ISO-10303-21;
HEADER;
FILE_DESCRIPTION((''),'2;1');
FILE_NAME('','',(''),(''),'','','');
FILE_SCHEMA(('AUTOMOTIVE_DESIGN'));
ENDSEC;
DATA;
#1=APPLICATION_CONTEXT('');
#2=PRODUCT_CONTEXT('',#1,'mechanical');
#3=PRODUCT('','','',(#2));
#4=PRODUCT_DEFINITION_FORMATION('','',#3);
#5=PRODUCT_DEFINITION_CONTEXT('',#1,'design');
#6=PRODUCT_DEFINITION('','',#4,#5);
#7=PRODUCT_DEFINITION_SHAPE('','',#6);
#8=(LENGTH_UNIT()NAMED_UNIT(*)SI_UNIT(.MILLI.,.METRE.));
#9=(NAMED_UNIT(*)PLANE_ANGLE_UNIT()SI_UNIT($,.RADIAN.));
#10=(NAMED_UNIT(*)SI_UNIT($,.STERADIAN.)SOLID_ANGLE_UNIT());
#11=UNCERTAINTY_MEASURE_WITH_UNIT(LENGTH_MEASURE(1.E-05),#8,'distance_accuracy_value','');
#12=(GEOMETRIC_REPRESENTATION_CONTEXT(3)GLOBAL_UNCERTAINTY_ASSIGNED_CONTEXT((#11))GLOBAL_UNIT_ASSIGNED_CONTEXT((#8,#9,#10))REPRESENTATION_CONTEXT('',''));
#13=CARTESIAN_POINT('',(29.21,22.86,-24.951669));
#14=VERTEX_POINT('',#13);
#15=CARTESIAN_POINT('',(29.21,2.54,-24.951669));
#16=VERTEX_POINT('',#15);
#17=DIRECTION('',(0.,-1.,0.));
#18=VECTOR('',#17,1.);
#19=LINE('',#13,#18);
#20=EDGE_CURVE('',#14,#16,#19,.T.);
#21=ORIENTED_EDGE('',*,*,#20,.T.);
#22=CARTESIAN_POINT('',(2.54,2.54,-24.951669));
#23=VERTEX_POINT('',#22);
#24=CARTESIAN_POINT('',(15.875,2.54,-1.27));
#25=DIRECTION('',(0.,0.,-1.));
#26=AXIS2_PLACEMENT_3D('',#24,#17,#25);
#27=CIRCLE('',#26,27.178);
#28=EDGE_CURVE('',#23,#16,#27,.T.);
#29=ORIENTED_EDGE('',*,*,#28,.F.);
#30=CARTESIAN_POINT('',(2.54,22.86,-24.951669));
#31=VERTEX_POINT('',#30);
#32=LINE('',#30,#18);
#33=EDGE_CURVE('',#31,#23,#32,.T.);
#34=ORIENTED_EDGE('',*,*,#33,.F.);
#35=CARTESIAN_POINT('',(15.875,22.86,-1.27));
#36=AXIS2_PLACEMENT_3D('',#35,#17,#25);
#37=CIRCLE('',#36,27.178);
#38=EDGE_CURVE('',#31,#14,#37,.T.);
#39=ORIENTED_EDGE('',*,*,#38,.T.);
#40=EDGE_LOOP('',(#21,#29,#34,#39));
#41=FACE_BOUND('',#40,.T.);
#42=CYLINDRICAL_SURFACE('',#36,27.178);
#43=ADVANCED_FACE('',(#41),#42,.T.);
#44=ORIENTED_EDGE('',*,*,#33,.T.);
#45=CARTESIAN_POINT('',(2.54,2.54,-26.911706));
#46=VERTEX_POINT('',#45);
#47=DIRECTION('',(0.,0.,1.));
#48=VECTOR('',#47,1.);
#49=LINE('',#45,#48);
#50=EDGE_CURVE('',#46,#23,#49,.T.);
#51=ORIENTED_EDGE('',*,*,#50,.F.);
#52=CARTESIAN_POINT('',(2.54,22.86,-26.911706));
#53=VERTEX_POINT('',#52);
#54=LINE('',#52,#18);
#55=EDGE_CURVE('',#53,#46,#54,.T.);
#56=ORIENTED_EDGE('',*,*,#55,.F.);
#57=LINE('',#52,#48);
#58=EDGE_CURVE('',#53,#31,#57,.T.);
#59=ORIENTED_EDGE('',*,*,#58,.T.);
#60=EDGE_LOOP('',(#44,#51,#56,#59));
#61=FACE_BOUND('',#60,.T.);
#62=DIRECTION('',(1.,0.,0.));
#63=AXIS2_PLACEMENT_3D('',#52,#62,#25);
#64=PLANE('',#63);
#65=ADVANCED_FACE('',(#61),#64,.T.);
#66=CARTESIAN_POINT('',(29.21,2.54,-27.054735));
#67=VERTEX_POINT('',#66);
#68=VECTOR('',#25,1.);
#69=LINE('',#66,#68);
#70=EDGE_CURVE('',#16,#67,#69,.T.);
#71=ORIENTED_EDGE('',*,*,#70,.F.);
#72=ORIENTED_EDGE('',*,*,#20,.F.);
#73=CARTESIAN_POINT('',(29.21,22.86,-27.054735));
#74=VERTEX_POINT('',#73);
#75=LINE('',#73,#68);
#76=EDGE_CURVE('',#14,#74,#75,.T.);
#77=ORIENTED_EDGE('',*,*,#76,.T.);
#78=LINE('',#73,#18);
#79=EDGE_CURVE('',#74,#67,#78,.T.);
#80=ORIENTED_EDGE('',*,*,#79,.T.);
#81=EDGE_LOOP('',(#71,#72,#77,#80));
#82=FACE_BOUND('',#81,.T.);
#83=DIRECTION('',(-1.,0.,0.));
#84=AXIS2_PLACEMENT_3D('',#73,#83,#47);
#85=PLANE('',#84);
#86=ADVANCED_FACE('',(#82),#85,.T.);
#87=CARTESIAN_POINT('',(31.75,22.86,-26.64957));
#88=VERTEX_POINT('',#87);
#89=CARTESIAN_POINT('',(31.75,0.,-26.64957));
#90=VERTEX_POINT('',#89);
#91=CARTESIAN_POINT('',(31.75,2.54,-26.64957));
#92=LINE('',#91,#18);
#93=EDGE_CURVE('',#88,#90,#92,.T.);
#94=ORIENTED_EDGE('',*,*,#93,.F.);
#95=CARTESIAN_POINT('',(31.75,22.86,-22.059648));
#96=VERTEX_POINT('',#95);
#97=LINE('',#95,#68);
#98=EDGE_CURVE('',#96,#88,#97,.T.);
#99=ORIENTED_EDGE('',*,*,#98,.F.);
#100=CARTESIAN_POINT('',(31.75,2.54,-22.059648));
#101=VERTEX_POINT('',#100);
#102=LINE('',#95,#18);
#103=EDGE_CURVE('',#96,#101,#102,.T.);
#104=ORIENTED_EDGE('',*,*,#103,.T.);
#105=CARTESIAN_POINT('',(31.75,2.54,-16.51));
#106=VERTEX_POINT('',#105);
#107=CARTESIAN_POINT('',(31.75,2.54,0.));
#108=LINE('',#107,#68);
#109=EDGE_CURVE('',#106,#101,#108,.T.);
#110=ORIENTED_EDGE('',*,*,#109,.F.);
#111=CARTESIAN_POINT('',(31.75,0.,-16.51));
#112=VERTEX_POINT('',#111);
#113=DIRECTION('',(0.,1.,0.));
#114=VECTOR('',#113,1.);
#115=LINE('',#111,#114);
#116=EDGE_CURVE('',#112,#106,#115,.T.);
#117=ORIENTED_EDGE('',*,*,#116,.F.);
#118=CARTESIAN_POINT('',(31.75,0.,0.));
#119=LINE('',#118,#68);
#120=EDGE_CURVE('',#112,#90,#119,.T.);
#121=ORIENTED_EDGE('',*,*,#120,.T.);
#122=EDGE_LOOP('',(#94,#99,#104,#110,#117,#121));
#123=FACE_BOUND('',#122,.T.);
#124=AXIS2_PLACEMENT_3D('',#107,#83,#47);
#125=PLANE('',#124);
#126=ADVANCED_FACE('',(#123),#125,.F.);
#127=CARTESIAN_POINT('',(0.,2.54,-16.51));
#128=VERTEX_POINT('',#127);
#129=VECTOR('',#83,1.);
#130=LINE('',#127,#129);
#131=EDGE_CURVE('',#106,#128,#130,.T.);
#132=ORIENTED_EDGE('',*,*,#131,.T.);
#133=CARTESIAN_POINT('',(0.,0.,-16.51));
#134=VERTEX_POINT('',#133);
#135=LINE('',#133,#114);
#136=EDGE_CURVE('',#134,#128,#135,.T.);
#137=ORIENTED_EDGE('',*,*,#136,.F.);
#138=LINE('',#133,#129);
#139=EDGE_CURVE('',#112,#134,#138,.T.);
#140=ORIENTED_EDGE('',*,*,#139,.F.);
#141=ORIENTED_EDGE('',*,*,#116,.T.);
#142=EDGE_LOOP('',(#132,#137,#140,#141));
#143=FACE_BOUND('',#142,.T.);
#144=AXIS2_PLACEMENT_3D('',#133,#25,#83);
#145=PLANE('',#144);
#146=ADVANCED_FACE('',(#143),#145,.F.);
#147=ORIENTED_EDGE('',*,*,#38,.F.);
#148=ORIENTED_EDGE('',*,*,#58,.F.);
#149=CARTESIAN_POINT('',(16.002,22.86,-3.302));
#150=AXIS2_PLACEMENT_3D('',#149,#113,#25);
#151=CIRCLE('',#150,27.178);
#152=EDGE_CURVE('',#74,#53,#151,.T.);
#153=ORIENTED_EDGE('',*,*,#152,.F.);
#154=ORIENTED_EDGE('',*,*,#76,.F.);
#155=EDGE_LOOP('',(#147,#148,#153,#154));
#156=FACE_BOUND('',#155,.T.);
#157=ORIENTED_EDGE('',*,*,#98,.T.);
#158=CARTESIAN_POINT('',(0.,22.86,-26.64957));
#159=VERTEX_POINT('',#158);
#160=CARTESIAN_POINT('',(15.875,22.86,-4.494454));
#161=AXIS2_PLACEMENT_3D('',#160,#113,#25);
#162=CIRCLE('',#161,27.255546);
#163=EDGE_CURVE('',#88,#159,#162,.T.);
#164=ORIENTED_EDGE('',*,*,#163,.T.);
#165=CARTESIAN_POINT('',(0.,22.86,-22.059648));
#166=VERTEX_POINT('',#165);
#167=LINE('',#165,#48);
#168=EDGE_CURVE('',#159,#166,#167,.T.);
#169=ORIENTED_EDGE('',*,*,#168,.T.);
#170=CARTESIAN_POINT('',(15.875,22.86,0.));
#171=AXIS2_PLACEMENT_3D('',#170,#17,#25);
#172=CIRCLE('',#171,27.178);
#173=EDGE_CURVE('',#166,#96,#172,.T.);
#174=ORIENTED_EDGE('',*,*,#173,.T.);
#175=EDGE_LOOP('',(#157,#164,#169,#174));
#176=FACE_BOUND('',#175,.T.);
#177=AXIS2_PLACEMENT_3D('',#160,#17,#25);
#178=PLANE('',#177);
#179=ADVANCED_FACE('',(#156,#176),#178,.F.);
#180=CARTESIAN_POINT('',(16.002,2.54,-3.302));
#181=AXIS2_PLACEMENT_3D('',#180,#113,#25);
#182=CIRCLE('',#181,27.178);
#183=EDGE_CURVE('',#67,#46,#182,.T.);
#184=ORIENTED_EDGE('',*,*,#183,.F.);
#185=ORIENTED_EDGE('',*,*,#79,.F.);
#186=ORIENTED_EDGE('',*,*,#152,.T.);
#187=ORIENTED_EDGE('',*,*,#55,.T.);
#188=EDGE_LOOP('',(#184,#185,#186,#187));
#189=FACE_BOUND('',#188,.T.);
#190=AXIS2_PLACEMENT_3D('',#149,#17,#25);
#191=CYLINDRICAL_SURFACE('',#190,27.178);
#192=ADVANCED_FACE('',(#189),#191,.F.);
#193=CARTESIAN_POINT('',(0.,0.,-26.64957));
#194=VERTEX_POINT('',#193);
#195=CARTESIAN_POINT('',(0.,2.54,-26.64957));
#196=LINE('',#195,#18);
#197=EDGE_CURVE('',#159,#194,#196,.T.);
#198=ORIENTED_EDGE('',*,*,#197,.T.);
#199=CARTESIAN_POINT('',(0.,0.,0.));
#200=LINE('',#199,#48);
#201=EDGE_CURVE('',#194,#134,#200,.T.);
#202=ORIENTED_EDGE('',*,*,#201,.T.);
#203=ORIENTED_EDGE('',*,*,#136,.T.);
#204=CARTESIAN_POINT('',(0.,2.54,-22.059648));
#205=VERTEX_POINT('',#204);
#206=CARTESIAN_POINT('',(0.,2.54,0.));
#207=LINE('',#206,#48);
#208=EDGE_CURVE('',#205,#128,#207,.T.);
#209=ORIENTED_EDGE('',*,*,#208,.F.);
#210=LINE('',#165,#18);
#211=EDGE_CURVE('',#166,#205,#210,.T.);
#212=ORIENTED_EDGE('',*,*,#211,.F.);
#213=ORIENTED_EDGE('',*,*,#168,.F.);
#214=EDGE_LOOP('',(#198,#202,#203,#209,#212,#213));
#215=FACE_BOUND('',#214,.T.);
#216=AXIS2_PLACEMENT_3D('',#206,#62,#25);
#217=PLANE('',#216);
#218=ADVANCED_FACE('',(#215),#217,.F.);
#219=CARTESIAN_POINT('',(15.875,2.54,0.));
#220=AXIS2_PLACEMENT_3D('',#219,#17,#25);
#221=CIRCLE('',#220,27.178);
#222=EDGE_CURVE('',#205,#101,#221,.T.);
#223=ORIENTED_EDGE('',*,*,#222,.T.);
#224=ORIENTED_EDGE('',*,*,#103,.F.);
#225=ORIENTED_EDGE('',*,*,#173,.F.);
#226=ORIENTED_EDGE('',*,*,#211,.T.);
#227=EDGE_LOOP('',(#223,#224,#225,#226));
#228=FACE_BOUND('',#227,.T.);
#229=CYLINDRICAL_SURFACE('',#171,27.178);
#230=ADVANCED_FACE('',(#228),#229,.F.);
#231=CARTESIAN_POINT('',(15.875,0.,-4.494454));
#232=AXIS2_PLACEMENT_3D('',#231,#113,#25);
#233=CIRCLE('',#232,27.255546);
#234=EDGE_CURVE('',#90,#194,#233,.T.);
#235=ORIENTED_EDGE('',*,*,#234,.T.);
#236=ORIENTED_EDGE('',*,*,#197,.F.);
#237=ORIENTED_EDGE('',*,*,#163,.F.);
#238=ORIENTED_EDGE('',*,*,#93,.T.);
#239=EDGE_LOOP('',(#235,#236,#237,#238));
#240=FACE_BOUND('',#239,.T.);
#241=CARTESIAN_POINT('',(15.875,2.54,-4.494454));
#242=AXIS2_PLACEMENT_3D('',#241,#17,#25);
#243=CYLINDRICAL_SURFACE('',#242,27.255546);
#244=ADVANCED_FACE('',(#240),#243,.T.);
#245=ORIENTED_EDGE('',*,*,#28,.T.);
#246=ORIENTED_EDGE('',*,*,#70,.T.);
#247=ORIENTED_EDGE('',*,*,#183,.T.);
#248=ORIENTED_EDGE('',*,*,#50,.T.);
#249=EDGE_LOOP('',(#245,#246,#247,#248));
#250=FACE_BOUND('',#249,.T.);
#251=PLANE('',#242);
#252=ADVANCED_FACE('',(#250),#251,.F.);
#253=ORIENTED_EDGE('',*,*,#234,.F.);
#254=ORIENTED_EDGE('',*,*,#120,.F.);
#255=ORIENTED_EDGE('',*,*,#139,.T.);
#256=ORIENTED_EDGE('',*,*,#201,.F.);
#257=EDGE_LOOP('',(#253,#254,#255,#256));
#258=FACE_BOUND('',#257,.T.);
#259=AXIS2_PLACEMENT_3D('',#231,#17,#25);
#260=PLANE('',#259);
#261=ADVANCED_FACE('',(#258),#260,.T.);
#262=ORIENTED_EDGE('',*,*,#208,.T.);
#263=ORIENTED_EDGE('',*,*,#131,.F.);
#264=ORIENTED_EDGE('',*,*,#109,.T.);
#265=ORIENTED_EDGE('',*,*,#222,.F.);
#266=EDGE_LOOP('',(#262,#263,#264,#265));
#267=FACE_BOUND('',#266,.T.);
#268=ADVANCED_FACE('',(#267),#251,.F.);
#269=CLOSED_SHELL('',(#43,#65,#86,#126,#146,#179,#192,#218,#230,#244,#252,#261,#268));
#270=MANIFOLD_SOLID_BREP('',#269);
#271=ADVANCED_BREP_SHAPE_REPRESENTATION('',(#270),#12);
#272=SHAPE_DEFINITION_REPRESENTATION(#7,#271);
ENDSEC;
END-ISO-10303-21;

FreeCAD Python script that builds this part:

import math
import FreeCAD as App
import Part
import Sketcher
from FreeCAD import Vector
Q = App.Units.Quantity

doc = App.newDocument("Part")
body = doc.addObject("PartDesign::Body", "Body")

# Sketch on XZ plane
sketch1 = body.newObject("Sketcher::SketchObject", "Sketch")
sketch1.AttachmentSupport = (doc.getObject("XZ_Plane"), [""])
sketch1.MapMode = "FlatFace"
sketch1.addGeometry(Part.LineSegment(Vector(0, 0, 0), Vector(32, 0, 0)), False)
sketch1.addGeometry(Part.LineSegment(Vector(32, 0, 0), Vector(32, -27, 0)), False)
sketch1.addGeometry(Part.ArcOfCircle(Part.Circle(Vector(16, -4, 0), Vector(0, 0, 1), 27), math.radians(-126), math.radians(-54)), False)
sketch1.addGeometry(Part.LineSegment(Vector(0, -27, 0), Vector(0, 0, 0)), False)
sketch1.addConstraint(Sketcher.Constraint("Coincident", 0, 2, 1, 1))
sketch1.addConstraint(Sketcher.Constraint("Coincident", 1, 2, 2, 2))
sketch1.addConstraint(Sketcher.Constraint("Coincident", 2, 1, 3, 1))
sketch1.addConstraint(Sketcher.Constraint("Coincident", 3, 2, 0, 1))
sketch1.addConstraint(Sketcher.Constraint("Horizontal", 0))
sketch1.addConstraint(Sketcher.Constraint("Vertical", 1))
sketch1.addConstraint(Sketcher.Constraint("Vertical", 3))
sketch1.addConstraint(Sketcher.Constraint("Coincident", 3, 2, -1, 1))
sketch1.addConstraint(Sketcher.Constraint("Horizontal", 1, 2, 2, 1))
sketch1.addConstraint(Sketcher.Constraint("DistanceX", 0, 1, 0, 2, Q("1.25 in")))
sketch1.addConstraint(Sketcher.Constraint("Radius", 2, 27.255546))
sketch1.addConstraint(Sketcher.Constraint("DistanceY", 1, 2, 1, 1, 26.64957))
pad1 = body.newObject("PartDesign::Pad", "Pad")
pad1.Profile = sketch1
pad1.Length = Q("0.1 in")
pad1.Reversed = True

# Sketch on XZ plane
sketch2 = body.newObject("Sketcher::SketchObject", "Sketch001")
sketch2.AttachmentSupport = (doc.getObject("XZ_Plane"), [""])
sketch2.MapMode = "FlatFace"
sketch2.AttachmentOffset = App.Placement(Vector(0, 0, -0.1 * 25.4), App.Rotation())
sketch2.addGeometry(Part.LineSegment(Vector(31.8, -22.1, 0), Vector(31.8, -26.6, 0)), False)
sketch2.addGeometry(Part.ArcOfCircle(Part.Circle(Vector(15.9, -4.5, 0), Vector(0, 0, 1), 27.3), math.radians(-126), math.radians(-54)), False)
sketch2.addGeometry(Part.LineSegment(Vector(0, -26.6, 0), Vector(0, -22.1, 0)), False)
sketch2.addGeometry(Part.ArcOfCircle(Part.Circle(Vector(15.9, 0, 0), Vector(0, 0, 1), 27.2), math.radians(-126), math.radians(-54)), False)
sketch2.addGeometry(Part.LineSegment(Vector(2.5, -25, 0), Vector(2.5, -26.9, 0)), False)
sketch2.addGeometry(Part.ArcOfCircle(Part.Circle(Vector(16, -3.3, 0), Vector(0, 0, 1), 27.2), math.radians(-120), math.radians(-61)), False)
sketch2.addGeometry(Part.LineSegment(Vector(29.2, -27.1, 0), Vector(29.2, -25, 0)), False)
sketch2.addGeometry(Part.ArcOfCircle(Part.Circle(Vector(15.9, -1.3, 0), Vector(0, 0, 1), 27.2), math.radians(-119), math.radians(-61)), False)
sketch2.addConstraint(Sketcher.Constraint("Coincident", 0, 2, 1, 2))
sketch2.addConstraint(Sketcher.Constraint("Coincident", 1, 1, 2, 1))
sketch2.addConstraint(Sketcher.Constraint("Coincident", 2, 2, 3, 1))
sketch2.addConstraint(Sketcher.Constraint("Coincident", 3, 2, 0, 1))
sketch2.addConstraint(Sketcher.Constraint("Coincident", 4, 2, 5, 1))
sketch2.addConstraint(Sketcher.Constraint("Coincident", 5, 2, 6, 1))
sketch2.addConstraint(Sketcher.Constraint("Coincident", 6, 2, 7, 2))
sketch2.addConstraint(Sketcher.Constraint("Coincident", 7, 1, 4, 1))
sketch2.addConstraint(Sketcher.Constraint("Vertical", 0))
sketch2.addConstraint(Sketcher.Constraint("Vertical", 2))
sketch2.addConstraint(Sketcher.Constraint("Vertical", 4))
sketch2.addConstraint(Sketcher.Constraint("Vertical", 6))
sketch2.addConstraint(Sketcher.Constraint("Equal", 3, 5))
sketch2.addConstraint(Sketcher.Constraint("Equal", 5, 7))
sketch2.addConstraint(Sketcher.Constraint("PointOnObject", 3, 3, -1))
sketch2.addConstraint(Sketcher.Constraint("PointOnObject", 1, 1, -2))
sketch2.addConstraint(Sketcher.Constraint("Horizontal", 0, 2, 1, 1))
sketch2.addConstraint(Sketcher.Constraint("Horizontal", 2, 2, 3, 2))
sketch2.addConstraint(Sketcher.Constraint("Horizontal", 6, 2, 7, 1))
sketch2.addConstraint(Sketcher.Constraint("Vertical", 3, 3, 7, 3))
sketch2.addConstraint(Sketcher.Constraint("Radius", 3, Q("1.07 in")))
sketch2.addConstraint(Sketcher.Constraint("DistanceX", -1, 1, 4, 2, Q("0.1 in")))
sketch2.addConstraint(Sketcher.Constraint("DistanceX", -1, 1, 5, 3, Q("0.63 in")))
sketch2.addConstraint(Sketcher.Constraint("DistanceY", 5, 3, -1, 1, Q("0.13 in")))
sketch2.addConstraint(Sketcher.Constraint("DistanceY", 7, 3, -1, 1, Q("0.05 in")))
sketch2.addConstraint(Sketcher.Constraint("DistanceX", -1, 1, 0, 2, Q("1.25 in")))
sketch2.addConstraint(Sketcher.Constraint("Radius", 1, 27.255546))
sketch2.addConstraint(Sketcher.Constraint("DistanceY", 5, 2, 1, 3, Q("0.8882 in")))
pad2 = body.newObject("PartDesign::Pad", "Pad001")
pad2.Profile = sketch2
pad2.Length = Q("0.8 in")
pad2.Reversed = True

# Sketch on XZ plane
sketch3 = body.newObject("Sketcher::SketchObject", "Sketch002")
sketch3.AttachmentSupport = (doc.getObject("XZ_Plane"), [""])
sketch3.MapMode = "FlatFace"
sketch3.AttachmentOffset = App.Placement(Vector(0, 0, -0.1 * 25.4), App.Rotation())
sketch3.addGeometry(Part.LineSegment(Vector(0, -17, 0), Vector(0, 0, 0)), False)
sketch3.addGeometry(Part.LineSegment(Vector(0, 0, 0), Vector(32, 0, 0)), False)
sketch3.addGeometry(Part.LineSegment(Vector(32, 0, 0), Vector(32, -17, 0)), False)
sketch3.addGeometry(Part.LineSegment(Vector(32, -17, 0), Vector(0, -17, 0)), False)
sketch3.addConstraint(Sketcher.Constraint("Coincident", 0, 2, 1, 1))
sketch3.addConstraint(Sketcher.Constraint("Coincident", 1, 2, 2, 1))
sketch3.addConstraint(Sketcher.Constraint("Coincident", 2, 2, 3, 1))
sketch3.addConstraint(Sketcher.Constraint("Coincident", 3, 2, 0, 1))
sketch3.addConstraint(Sketcher.Constraint("Vertical", 0))
sketch3.addConstraint(Sketcher.Constraint("Horizontal", 1))
sketch3.addConstraint(Sketcher.Constraint("Vertical", 2))
sketch3.addConstraint(Sketcher.Constraint("Horizontal", 3))
sketch3.addConstraint(Sketcher.Constraint("Coincident", 0, 2, -1, 1))
sketch3.addConstraint(Sketcher.Constraint("DistanceX", 1, 1, 1, 2, Q("1.25 in")))
sketch3.addConstraint(Sketcher.Constraint("DistanceY", 0, 1, 0, 2, Q("0.65 in")))
pocket1 = body.newObject("PartDesign::Pocket", "Pocket")
pocket1.Profile = sketch3
pocket1.Length = Q("0.1 in")
pocket1.Reversed = True

doc.recompute()
